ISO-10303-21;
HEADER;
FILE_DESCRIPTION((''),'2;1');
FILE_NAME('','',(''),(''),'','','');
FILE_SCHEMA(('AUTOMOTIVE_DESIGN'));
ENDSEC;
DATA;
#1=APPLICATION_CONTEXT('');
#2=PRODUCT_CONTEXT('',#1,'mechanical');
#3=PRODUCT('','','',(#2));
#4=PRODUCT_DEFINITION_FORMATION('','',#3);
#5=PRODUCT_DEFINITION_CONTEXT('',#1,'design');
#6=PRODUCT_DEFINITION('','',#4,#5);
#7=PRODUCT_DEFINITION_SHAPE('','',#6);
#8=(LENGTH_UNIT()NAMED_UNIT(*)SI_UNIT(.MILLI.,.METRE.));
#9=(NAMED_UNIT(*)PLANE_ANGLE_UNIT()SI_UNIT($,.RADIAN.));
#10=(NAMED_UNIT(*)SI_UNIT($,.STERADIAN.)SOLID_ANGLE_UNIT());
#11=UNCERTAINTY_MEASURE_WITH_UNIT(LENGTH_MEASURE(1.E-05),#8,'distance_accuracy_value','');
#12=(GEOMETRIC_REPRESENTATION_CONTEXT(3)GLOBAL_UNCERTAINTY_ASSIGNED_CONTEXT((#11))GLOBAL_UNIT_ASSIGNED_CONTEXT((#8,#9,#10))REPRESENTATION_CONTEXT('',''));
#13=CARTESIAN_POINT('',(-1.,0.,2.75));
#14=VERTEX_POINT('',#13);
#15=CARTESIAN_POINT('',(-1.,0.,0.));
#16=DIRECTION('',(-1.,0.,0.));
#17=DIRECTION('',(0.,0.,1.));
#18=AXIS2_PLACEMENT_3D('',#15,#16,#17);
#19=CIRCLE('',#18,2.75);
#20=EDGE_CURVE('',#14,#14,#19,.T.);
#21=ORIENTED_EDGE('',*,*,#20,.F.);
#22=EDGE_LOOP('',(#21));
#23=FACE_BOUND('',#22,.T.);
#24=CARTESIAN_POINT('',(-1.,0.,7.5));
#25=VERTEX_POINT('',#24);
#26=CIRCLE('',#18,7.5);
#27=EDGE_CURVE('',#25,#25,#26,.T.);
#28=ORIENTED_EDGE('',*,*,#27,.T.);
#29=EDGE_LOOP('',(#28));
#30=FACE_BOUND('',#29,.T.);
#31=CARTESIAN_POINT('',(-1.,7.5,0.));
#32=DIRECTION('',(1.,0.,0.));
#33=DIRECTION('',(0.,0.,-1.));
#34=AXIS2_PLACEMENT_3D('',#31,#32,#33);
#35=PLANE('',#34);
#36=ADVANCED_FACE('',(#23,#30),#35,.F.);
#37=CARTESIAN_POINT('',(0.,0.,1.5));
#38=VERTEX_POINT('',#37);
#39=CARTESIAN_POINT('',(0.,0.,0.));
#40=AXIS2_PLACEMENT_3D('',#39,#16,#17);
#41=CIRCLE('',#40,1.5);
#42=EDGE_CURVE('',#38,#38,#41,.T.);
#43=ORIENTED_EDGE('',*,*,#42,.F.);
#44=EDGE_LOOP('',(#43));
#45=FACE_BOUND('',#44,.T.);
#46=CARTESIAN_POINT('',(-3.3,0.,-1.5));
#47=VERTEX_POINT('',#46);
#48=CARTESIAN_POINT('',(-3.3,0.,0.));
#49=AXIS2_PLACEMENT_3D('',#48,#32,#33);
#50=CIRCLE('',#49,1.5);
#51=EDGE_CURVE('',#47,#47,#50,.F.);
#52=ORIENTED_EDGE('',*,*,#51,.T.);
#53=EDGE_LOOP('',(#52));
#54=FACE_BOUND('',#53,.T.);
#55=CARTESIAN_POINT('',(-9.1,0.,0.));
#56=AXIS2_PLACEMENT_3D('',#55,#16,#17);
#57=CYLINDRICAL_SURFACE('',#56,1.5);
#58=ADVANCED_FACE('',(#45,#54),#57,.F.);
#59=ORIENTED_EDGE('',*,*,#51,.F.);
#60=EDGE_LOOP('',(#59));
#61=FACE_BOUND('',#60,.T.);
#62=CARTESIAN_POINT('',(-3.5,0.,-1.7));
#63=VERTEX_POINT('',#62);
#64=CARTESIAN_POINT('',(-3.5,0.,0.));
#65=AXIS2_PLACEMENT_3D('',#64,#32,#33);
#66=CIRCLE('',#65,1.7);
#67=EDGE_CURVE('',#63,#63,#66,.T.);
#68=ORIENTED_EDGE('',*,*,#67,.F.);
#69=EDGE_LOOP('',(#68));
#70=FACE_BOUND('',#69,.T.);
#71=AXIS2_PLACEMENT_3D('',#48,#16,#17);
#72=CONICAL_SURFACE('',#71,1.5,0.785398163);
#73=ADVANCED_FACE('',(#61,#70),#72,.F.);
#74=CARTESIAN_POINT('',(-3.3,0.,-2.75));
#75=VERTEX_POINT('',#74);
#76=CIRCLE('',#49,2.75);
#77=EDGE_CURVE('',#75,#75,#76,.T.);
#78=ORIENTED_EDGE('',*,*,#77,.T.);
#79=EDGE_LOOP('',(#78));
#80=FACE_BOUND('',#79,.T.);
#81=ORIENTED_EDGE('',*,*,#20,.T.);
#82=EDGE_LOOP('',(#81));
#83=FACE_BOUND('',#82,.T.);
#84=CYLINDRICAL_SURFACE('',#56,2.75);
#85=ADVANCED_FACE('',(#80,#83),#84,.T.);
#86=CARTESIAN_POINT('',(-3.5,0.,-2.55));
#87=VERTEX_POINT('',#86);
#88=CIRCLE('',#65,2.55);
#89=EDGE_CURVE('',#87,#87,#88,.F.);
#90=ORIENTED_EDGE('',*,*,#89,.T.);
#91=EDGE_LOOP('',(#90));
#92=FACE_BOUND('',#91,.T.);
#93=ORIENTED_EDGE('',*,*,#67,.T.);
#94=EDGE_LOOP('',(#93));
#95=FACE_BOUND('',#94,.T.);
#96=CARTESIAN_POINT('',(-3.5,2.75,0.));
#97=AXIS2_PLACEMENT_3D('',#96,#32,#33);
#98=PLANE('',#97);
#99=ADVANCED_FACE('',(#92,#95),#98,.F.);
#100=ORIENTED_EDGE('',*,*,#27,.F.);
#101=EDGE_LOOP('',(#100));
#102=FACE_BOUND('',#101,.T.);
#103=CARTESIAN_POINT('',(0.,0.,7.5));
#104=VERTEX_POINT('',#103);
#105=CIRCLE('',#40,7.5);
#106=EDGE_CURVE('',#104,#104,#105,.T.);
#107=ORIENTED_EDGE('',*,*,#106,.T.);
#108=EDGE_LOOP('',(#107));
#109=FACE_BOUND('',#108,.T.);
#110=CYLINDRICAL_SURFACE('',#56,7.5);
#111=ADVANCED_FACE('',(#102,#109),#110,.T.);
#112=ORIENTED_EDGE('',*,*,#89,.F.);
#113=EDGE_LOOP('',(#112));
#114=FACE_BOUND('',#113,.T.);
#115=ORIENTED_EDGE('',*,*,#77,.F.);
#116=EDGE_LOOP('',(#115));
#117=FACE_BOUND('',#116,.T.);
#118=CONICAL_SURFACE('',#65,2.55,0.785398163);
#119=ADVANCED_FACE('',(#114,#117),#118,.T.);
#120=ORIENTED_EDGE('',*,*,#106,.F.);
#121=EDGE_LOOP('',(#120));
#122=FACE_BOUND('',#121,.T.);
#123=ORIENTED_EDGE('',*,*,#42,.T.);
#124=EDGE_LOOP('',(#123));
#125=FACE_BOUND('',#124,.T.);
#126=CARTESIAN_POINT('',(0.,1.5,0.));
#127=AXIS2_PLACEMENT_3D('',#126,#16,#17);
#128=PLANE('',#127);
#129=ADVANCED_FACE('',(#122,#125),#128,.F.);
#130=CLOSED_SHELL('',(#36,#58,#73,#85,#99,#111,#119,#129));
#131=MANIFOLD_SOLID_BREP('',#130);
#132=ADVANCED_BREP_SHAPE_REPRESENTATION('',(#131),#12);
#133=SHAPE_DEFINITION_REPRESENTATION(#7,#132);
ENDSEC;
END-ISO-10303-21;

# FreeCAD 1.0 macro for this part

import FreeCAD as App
import Part
import Sketcher


def edges_at(feature, points):
    """Names of the edges that pass closest to the given points."""
    edges = feature.Shape.Edges
    near = lambda p: min(range(len(edges)), key=lambda i: edges[i].distToShape(Part.Vertex(*p))[0])
    return sorted({f"Edge{near(p) + 1}" for p in points})

doc = App.newDocument("Part")
params = doc.addObject("Spreadsheet::Sheet", "Params")
for row, (alias, value) in enumerate([
    ("sketch1_width", "1 mm"),
    ("sketch1_height", "6 mm"),
    ("sketch1_width2", "2.5 mm"),
    ("sketch1_height2", "4.75 mm"),
    ("revolution_angle", "360 deg"),
    ("chamfer_size", "0.2 mm"),
], start=1):
    params.set(f"A{row}", alias)
    params.set(f"B{row}", "=" + value)
    params.setAlias(f"B{row}", alias)

body = doc.addObject("PartDesign::Body", "Body")

# Sketch on XY plane
sketch1 = doc.addObject("Sketcher::SketchObject", "Sketch")
body.addObject(sketch1)
sketch1.AttachmentSupport = (doc.XY_Plane, [""])
sketch1.MapMode = "FlatFace"
sketch1.addGeometry([
    Part.LineSegment(App.Vector(0, 1.5, 0), App.Vector(0, 7.5, 0)),  # 0
    Part.LineSegment(App.Vector(0, 7.5, 0), App.Vector(-1, 7.5, 0)),  # 1
    Part.LineSegment(App.Vector(-1, 7.5, 0), App.Vector(-1, 2.8, 0)),  # 2
    Part.LineSegment(App.Vector(-1, 2.8, 0), App.Vector(-3.5, 2.8, 0)),  # 3
    Part.LineSegment(App.Vector(-3.5, 2.8, 0), App.Vector(-3.5, 1.5, 0)),  # 4
    Part.LineSegment(App.Vector(-3.5, 1.5, 0), App.Vector(0, 1.5, 0)),  # 5
], False)
sketch1.addConstraint([
    Sketcher.Constraint("Coincident", 0, 2, 1, 1),
    Sketcher.Constraint("Coincident", 1, 2, 2, 1),
    Sketcher.Constraint("Coincident", 2, 2, 3, 1),
    Sketcher.Constraint("Coincident", 3, 2, 4, 1),
    Sketcher.Constraint("Coincident", 4, 2, 5, 1),
    Sketcher.Constraint("Coincident", 5, 2, 0, 1),
    Sketcher.Constraint("Vertical", 0),
    Sketcher.Constraint("Horizontal", 1),
    Sketcher.Constraint("Vertical", 2),
    Sketcher.Constraint("Horizontal", 3),
    Sketcher.Constraint("Vertical", 4),
    Sketcher.Constraint("Horizontal", 5),
    Sketcher.Constraint("PointOnObject", 0, 2, -2),
    Sketcher.Constraint("DistanceX", 1, 2, 1, 1, 1.0),
    Sketcher.Constraint("DistanceY", 0, 1, 0, 2, 6.0),
    Sketcher.Constraint("DistanceX", 3, 2, 3, 1, 2.5),
    Sketcher.Constraint("DistanceY", 2, 2, 2, 1, 4.75),
    Sketcher.Constraint("DistanceY", -1, 1, 0, 2, 7.5),
])
sketch1.setExpression("Constraints[13]", "Params.sketch1_width")
sketch1.setExpression("Constraints[14]", "Params.sketch1_height")
sketch1.setExpression("Constraints[15]", "Params.sketch1_width2")
sketch1.setExpression("Constraints[16]", "Params.sketch1_height2")
revolution = doc.addObject("PartDesign::Revolution", "Revolution")
body.addObject(revolution)
revolution.Profile = sketch1
revolution.ReferenceAxis = (sketch1, ["H_Axis"])
revolution.setExpression("Angle", "Params.revolution_angle")
doc.recompute()

chamfer = doc.addObject("PartDesign::Chamfer", "Chamfer")
body.addObject(chamfer)
chamfer.Base = (revolution, edges_at(revolution, [(-3.5, 0, -1.5), (-3.5, 0, -2.75)]))
chamfer.setExpression("Size", "Params.chamfer_size")

doc.recompute()
